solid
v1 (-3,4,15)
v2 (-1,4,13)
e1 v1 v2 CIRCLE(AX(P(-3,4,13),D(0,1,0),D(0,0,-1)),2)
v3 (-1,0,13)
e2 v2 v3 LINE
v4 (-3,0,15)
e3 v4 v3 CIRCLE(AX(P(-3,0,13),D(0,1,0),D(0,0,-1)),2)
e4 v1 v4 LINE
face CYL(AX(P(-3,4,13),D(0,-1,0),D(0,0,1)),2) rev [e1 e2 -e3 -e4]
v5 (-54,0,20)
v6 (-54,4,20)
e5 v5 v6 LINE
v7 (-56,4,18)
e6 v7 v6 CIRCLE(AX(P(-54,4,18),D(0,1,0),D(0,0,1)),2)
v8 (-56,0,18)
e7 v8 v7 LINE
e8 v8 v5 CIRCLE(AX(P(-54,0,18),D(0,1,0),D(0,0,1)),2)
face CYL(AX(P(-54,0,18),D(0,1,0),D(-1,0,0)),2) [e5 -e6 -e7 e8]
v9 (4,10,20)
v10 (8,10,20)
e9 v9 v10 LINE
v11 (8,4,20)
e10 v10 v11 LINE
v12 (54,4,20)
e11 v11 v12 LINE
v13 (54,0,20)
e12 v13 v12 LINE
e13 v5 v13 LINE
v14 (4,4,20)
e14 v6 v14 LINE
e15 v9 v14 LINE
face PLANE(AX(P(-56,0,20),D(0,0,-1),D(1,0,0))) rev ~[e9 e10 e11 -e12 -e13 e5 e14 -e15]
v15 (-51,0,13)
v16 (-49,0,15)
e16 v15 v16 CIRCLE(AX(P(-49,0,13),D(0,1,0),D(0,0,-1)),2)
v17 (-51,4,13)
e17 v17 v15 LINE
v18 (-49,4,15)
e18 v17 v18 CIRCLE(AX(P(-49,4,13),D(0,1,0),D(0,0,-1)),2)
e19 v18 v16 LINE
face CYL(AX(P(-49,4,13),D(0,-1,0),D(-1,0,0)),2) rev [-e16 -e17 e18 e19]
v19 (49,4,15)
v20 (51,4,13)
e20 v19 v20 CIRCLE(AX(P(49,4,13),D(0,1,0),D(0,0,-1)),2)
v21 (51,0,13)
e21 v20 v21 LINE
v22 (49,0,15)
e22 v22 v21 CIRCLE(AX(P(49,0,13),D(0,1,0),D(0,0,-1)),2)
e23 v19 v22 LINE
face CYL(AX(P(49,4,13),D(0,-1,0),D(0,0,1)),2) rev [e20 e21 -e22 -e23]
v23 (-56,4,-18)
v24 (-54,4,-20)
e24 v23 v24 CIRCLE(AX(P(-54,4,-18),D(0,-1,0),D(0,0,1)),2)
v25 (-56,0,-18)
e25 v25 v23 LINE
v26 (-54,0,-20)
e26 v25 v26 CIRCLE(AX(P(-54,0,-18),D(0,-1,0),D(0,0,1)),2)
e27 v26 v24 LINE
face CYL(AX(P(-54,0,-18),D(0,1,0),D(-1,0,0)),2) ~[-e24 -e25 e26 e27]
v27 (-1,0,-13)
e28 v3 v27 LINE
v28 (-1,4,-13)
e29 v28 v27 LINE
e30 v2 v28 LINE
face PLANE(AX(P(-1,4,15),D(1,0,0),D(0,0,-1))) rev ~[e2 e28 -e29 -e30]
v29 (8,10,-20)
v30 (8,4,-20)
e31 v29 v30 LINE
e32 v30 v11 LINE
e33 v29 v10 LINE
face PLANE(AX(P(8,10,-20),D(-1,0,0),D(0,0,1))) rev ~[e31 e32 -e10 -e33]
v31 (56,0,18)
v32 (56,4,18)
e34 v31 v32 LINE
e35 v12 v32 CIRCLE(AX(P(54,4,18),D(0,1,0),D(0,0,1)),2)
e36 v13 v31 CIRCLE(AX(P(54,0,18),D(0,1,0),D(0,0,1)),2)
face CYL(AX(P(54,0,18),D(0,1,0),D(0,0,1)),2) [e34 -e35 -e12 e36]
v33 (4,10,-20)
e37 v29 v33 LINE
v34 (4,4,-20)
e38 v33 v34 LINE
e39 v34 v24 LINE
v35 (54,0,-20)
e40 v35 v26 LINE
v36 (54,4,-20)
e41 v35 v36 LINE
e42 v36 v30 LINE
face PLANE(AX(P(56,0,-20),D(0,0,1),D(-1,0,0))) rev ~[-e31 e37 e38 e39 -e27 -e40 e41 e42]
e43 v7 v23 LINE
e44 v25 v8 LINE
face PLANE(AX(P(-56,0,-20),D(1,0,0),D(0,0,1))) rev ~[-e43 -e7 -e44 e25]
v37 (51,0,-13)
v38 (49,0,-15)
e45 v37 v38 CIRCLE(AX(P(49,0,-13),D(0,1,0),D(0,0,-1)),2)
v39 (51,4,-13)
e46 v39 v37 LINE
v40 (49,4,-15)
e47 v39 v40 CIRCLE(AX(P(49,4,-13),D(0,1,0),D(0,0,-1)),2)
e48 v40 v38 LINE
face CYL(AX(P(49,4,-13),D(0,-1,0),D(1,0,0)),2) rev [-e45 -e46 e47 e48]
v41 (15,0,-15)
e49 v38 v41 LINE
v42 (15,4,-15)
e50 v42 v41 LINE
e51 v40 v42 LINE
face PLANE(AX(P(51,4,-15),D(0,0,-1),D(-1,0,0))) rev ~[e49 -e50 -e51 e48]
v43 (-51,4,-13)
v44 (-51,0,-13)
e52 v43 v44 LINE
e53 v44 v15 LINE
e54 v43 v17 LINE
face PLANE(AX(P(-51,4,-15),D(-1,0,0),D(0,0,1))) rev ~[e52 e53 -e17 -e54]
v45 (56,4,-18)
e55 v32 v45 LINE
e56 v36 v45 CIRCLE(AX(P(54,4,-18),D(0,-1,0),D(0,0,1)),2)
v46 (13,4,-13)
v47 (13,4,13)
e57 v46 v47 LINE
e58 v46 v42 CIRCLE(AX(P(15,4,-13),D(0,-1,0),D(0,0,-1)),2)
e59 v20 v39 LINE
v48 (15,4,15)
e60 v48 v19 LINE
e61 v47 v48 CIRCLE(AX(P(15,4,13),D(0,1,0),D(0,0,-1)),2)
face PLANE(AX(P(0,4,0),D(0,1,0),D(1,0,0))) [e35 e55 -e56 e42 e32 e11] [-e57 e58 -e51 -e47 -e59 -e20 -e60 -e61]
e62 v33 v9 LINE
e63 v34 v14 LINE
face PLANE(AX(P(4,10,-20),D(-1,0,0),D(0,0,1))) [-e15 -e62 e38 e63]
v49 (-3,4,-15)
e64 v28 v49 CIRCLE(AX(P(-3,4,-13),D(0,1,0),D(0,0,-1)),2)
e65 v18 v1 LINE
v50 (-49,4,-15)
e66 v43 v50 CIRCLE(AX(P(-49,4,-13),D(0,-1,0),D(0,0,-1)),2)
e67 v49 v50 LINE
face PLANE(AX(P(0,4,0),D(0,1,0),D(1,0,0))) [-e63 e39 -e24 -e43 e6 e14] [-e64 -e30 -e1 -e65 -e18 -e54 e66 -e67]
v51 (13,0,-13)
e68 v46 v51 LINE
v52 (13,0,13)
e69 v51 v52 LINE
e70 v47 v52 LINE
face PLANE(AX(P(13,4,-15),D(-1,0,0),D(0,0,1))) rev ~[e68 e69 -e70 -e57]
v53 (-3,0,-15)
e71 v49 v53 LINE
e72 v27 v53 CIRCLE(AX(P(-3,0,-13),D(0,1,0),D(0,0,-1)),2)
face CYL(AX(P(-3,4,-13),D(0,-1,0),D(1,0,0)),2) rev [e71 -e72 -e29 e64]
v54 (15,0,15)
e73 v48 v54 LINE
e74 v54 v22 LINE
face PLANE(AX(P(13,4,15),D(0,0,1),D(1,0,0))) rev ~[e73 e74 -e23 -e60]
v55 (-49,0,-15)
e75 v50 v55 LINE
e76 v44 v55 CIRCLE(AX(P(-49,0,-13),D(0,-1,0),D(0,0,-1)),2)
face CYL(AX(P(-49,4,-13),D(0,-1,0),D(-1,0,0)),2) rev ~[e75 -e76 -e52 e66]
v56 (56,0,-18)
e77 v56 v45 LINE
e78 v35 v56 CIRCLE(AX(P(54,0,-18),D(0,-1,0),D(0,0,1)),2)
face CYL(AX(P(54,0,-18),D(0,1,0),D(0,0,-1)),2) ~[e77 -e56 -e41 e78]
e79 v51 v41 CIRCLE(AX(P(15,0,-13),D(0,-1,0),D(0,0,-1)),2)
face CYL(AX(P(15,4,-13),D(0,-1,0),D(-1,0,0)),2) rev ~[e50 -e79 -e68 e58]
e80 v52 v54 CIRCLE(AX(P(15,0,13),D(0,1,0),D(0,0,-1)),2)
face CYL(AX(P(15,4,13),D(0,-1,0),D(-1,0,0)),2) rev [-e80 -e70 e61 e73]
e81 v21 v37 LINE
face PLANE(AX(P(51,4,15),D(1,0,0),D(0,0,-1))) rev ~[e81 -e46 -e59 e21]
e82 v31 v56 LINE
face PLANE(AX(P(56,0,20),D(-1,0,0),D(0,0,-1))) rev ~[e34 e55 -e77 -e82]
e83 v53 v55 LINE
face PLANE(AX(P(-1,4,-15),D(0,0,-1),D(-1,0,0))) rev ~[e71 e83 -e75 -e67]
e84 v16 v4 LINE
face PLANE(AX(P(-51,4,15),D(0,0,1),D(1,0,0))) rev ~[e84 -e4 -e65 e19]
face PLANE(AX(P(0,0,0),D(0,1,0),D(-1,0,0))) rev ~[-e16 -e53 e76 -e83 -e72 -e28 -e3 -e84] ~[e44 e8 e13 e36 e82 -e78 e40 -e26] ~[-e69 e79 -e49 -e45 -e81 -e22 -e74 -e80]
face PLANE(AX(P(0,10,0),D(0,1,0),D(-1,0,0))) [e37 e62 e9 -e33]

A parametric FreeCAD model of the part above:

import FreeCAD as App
import Part
import Sketcher

V = App.Vector


def edges_at(feature, points):
    """Names of the edges that pass closest to the given points."""
    edges = feature.Shape.Edges
    near = lambda p: min(range(len(edges)), key=lambda i: edges[i].distToShape(Part.Vertex(*p))[0])
    return sorted({f"Edge{near(p) + 1}" for p in points})


def add_polygon(sketch, points):
    """Adds a closed chain of lines whose ends are joined by coincident constraints."""
    first, n = sketch.GeometryCount, len(points)
    for a, b in zip(points, points[1:] + points[:1]):
        sketch.addGeometry(Part.LineSegment(App.Vector(*a, 0), App.Vector(*b, 0)), False)
    for i in range(n):
        sketch.addConstraint(Sketcher.Constraint("Coincident", first + i, 2, first + (i + 1) % n, 1))

doc = App.newDocument("Part")
params = doc.addObject("Spreadsheet::Sheet", "Params")
for row, (alias, value) in enumerate([
    ("sketch1_width", "112 mm"),
    ("sketch1_height", "40 mm"),
    ("pad1_length", "10 mm"),
    ("sketch2_width", "48 mm"),
    ("sketch2_width2", "60 mm"),
    ("sketch2_height", "40 mm"),
    ("pocket1_length", "6 mm"),
    ("fillet_radius", "2 mm"),
    ("sketch3_width", "50 mm"),
    ("sketch3_width2", "38 mm"),
    ("sketch3_height", "30 mm"),
    ("pocket2_length", "6 mm"),
    ("fillet2_radius", "2 mm"),
], start=1):
    params.set(f"A{row}", alias)
    params.set(f"B{row}", "=" + value)
    params.setAlias(f"B{row}", alias)

body = doc.addObject("PartDesign::Body", "Body")

sketch1 = doc.addObject("Sketcher::SketchObject", "Sketch")
body.addObject(sketch1)
sketch1.AttachmentSupport = (doc.XZ_Plane, [""])
sketch1.MapMode = "FlatFace"
add_polygon(sketch1, [(-56, -20), (-56, 20), (56, 20), (56, -20)])
sketch1.addConstraint(Sketcher.Constraint("Vertical", 0))
sketch1.addConstraint(Sketcher.Constraint("Horizontal", 1))
sketch1.addConstraint(Sketcher.Constraint("Vertical", 2))
sketch1.addConstraint(Sketcher.Constraint("Horizontal", 3))
sketch1.addConstraint(Sketcher.Constraint("Symmetric", 0, 2, 2, 2, -1, 1))
sketch1.addConstraint(Sketcher.Constraint("DistanceX", 1, 1, 1, 2, 112.0))
sketch1.addConstraint(Sketcher.Constraint("DistanceY", 0, 1, 0, 2, 40.0))
sketch1.setExpression("Constraints[9]", "Params.sketch1_width")
sketch1.setExpression("Constraints[10]", "Params.sketch1_height")
pad1 = doc.addObject("PartDesign::Pad", "Pad")
body.addObject(pad1)
pad1.Profile = sketch1
pad1.setExpression("Length", "Params.pad1_length")
pad1.Reversed = True

sketch2 = doc.addObject("Sketcher::SketchObject", "Sketch001")
body.addObject(sketch2)
sketch2.AttachmentSupport = (doc.XZ_Plane, [""])
sketch2.MapMode = "FlatFace"
sketch2.AttachmentOffset = App.Placement(V(0, 0, -10), App.Rotation())
add_polygon(sketch2, [(56, 20), (56, -20), (8, -20), (8, 20)])
add_polygon(sketch2, [(4, 20), (4, -20), (-56, -20), (-56, 20)])
sketch2.addConstraint(Sketcher.Constraint("Vertical", 0))
sketch2.addConstraint(Sketcher.Constraint("Horizontal", 1))
sketch2.addConstraint(Sketcher.Constraint("Vertical", 2))
sketch2.addConstraint(Sketcher.Constraint("Horizontal", 3))
sketch2.addConstraint(Sketcher.Constraint("Vertical", 4))
sketch2.addConstraint(Sketcher.Constraint("Horizontal", 5))
sketch2.addConstraint(Sketcher.Constraint("Vertical", 6))
sketch2.addConstraint(Sketcher.Constraint("Horizontal", 7))
sketch2.addConstraint(Sketcher.Constraint("Symmetric", 3, 2, 5, 2, -1, 1))
sketch2.addConstraint(Sketcher.Constraint("Horizontal", 1, 2, 4, 2))
sketch2.addConstraint(Sketcher.Constraint("Horizontal", 3, 2, 6, 2))
sketch2.addConstraint(Sketcher.Constraint("DistanceX", 1, 2, 1, 1, 48.0))
sketch2.addConstraint(Sketcher.Constraint("DistanceX", 5, 2, 5, 1, 60.0))
sketch2.addConstraint(Sketcher.Constraint("DistanceY", 0, 2, 0, 1, 40.0))
sketch2.addConstraint(Sketcher.Constraint("DistanceX", -1, 1, 0, 2, 56.0))
sketch2.setExpression("Constraints[19]", "Params.sketch2_width")
sketch2.setExpression("Constraints[20]", "Params.sketch2_width2")
sketch2.setExpression("Constraints[21]", "Params.sketch2_height")
pocket1 = doc.addObject("PartDesign::Pocket", "Pocket")
body.addObject(pocket1)
pocket1.Profile = sketch2
pocket1.setExpression("Length", "Params.pocket1_length")
pocket1.Reversed = True
doc.recompute()

fillet = doc.addObject("PartDesign::Fillet", "Fillet")
body.addObject(fillet)
fillet.Base = (pocket1, edges_at(pocket1, [
    (-56, 2, 20),
    (-56, 2, -20),
    (56, 2, -20),
    (56, 2, 20),
]))
fillet.setExpression("Radius", "Params.fillet_radius")

sketch3 = doc.addObject("Sketcher::SketchObject", "Sketch002")
body.addObject(sketch3)
sketch3.AttachmentSupport = (doc.XZ_Plane, [""])
sketch3.MapMode = "FlatFace"
sketch3.AttachmentOffset = App.Placement(V(0, 0, -4), App.Rotation())
add_polygon(sketch3, [(-51, -15), (-51, 15), (-1, 15), (-1, -15)])
add_polygon(sketch3, [(13, -15), (13, 15), (51, 15), (51, -15)])
sketch3.addConstraint(Sketcher.Constraint("Vertical", 0))
sketch3.addConstraint(Sketcher.Constraint("Horizontal", 1))
sketch3.addConstraint(Sketcher.Constraint("Vertical", 2))
sketch3.addConstraint(Sketcher.Constraint("Horizontal", 3))
sketch3.addConstraint(Sketcher.Constraint("Vertical", 4))
sketch3.addConstraint(Sketcher.Constraint("Horizontal", 5))
sketch3.addConstraint(Sketcher.Constraint("Vertical", 6))
sketch3.addConstraint(Sketcher.Constraint("Horizontal", 7))
sketch3.addConstraint(Sketcher.Constraint("Symmetric", 3, 2, 5, 2, -1, 1))
sketch3.addConstraint(Sketcher.Constraint("Horizontal", 1, 2, 4, 2))
sketch3.addConstraint(Sketcher.Constraint("Horizontal", 3, 2, 6, 2))
sketch3.addConstraint(Sketcher.Constraint("DistanceX", 1, 1, 1, 2, 50.0))
sketch3.addConstraint(Sketcher.Constraint("DistanceX", 5, 1, 5, 2, 38.0))
sketch3.addConstraint(Sketcher.Constraint("DistanceY", 0, 1, 0, 2, 30.0))
sketch3.addConstraint(Sketcher.Constraint("DistanceX", 0, 2, -1, 1, 51.0))
sketch3.setExpression("Constraints[19]", "Params.sketch3_width")
sketch3.setExpression("Constraints[20]", "Params.sketch3_width2")
sketch3.setExpression("Constraints[21]", "Params.sketch3_height")
pocket2 = doc.addObject("PartDesign::Pocket", "Pocket001")
body.addObject(pocket2)
pocket2.Profile = sketch3
pocket2.setExpression("Length", "Params.pocket2_length")
pocket2.Reversed = True
doc.recompute()

fillet2 = doc.addObject("PartDesign::Fillet", "Fillet001")
body.addObject(fillet2)
fillet2.Base = (pocket2, edges_at(pocket2, [
    (-51, 2, -15),
    (-1, 2, -15),
    (-51, 2, 15),
    (-1, 2, 15),
    (13, 2, -15),
    (51, 2, -15),
    (13, 2, 15),
    (51, 2, 15),
]))
fillet2.setExpression("Radius", "Params.fillet2_radius")

doc.recompute()
